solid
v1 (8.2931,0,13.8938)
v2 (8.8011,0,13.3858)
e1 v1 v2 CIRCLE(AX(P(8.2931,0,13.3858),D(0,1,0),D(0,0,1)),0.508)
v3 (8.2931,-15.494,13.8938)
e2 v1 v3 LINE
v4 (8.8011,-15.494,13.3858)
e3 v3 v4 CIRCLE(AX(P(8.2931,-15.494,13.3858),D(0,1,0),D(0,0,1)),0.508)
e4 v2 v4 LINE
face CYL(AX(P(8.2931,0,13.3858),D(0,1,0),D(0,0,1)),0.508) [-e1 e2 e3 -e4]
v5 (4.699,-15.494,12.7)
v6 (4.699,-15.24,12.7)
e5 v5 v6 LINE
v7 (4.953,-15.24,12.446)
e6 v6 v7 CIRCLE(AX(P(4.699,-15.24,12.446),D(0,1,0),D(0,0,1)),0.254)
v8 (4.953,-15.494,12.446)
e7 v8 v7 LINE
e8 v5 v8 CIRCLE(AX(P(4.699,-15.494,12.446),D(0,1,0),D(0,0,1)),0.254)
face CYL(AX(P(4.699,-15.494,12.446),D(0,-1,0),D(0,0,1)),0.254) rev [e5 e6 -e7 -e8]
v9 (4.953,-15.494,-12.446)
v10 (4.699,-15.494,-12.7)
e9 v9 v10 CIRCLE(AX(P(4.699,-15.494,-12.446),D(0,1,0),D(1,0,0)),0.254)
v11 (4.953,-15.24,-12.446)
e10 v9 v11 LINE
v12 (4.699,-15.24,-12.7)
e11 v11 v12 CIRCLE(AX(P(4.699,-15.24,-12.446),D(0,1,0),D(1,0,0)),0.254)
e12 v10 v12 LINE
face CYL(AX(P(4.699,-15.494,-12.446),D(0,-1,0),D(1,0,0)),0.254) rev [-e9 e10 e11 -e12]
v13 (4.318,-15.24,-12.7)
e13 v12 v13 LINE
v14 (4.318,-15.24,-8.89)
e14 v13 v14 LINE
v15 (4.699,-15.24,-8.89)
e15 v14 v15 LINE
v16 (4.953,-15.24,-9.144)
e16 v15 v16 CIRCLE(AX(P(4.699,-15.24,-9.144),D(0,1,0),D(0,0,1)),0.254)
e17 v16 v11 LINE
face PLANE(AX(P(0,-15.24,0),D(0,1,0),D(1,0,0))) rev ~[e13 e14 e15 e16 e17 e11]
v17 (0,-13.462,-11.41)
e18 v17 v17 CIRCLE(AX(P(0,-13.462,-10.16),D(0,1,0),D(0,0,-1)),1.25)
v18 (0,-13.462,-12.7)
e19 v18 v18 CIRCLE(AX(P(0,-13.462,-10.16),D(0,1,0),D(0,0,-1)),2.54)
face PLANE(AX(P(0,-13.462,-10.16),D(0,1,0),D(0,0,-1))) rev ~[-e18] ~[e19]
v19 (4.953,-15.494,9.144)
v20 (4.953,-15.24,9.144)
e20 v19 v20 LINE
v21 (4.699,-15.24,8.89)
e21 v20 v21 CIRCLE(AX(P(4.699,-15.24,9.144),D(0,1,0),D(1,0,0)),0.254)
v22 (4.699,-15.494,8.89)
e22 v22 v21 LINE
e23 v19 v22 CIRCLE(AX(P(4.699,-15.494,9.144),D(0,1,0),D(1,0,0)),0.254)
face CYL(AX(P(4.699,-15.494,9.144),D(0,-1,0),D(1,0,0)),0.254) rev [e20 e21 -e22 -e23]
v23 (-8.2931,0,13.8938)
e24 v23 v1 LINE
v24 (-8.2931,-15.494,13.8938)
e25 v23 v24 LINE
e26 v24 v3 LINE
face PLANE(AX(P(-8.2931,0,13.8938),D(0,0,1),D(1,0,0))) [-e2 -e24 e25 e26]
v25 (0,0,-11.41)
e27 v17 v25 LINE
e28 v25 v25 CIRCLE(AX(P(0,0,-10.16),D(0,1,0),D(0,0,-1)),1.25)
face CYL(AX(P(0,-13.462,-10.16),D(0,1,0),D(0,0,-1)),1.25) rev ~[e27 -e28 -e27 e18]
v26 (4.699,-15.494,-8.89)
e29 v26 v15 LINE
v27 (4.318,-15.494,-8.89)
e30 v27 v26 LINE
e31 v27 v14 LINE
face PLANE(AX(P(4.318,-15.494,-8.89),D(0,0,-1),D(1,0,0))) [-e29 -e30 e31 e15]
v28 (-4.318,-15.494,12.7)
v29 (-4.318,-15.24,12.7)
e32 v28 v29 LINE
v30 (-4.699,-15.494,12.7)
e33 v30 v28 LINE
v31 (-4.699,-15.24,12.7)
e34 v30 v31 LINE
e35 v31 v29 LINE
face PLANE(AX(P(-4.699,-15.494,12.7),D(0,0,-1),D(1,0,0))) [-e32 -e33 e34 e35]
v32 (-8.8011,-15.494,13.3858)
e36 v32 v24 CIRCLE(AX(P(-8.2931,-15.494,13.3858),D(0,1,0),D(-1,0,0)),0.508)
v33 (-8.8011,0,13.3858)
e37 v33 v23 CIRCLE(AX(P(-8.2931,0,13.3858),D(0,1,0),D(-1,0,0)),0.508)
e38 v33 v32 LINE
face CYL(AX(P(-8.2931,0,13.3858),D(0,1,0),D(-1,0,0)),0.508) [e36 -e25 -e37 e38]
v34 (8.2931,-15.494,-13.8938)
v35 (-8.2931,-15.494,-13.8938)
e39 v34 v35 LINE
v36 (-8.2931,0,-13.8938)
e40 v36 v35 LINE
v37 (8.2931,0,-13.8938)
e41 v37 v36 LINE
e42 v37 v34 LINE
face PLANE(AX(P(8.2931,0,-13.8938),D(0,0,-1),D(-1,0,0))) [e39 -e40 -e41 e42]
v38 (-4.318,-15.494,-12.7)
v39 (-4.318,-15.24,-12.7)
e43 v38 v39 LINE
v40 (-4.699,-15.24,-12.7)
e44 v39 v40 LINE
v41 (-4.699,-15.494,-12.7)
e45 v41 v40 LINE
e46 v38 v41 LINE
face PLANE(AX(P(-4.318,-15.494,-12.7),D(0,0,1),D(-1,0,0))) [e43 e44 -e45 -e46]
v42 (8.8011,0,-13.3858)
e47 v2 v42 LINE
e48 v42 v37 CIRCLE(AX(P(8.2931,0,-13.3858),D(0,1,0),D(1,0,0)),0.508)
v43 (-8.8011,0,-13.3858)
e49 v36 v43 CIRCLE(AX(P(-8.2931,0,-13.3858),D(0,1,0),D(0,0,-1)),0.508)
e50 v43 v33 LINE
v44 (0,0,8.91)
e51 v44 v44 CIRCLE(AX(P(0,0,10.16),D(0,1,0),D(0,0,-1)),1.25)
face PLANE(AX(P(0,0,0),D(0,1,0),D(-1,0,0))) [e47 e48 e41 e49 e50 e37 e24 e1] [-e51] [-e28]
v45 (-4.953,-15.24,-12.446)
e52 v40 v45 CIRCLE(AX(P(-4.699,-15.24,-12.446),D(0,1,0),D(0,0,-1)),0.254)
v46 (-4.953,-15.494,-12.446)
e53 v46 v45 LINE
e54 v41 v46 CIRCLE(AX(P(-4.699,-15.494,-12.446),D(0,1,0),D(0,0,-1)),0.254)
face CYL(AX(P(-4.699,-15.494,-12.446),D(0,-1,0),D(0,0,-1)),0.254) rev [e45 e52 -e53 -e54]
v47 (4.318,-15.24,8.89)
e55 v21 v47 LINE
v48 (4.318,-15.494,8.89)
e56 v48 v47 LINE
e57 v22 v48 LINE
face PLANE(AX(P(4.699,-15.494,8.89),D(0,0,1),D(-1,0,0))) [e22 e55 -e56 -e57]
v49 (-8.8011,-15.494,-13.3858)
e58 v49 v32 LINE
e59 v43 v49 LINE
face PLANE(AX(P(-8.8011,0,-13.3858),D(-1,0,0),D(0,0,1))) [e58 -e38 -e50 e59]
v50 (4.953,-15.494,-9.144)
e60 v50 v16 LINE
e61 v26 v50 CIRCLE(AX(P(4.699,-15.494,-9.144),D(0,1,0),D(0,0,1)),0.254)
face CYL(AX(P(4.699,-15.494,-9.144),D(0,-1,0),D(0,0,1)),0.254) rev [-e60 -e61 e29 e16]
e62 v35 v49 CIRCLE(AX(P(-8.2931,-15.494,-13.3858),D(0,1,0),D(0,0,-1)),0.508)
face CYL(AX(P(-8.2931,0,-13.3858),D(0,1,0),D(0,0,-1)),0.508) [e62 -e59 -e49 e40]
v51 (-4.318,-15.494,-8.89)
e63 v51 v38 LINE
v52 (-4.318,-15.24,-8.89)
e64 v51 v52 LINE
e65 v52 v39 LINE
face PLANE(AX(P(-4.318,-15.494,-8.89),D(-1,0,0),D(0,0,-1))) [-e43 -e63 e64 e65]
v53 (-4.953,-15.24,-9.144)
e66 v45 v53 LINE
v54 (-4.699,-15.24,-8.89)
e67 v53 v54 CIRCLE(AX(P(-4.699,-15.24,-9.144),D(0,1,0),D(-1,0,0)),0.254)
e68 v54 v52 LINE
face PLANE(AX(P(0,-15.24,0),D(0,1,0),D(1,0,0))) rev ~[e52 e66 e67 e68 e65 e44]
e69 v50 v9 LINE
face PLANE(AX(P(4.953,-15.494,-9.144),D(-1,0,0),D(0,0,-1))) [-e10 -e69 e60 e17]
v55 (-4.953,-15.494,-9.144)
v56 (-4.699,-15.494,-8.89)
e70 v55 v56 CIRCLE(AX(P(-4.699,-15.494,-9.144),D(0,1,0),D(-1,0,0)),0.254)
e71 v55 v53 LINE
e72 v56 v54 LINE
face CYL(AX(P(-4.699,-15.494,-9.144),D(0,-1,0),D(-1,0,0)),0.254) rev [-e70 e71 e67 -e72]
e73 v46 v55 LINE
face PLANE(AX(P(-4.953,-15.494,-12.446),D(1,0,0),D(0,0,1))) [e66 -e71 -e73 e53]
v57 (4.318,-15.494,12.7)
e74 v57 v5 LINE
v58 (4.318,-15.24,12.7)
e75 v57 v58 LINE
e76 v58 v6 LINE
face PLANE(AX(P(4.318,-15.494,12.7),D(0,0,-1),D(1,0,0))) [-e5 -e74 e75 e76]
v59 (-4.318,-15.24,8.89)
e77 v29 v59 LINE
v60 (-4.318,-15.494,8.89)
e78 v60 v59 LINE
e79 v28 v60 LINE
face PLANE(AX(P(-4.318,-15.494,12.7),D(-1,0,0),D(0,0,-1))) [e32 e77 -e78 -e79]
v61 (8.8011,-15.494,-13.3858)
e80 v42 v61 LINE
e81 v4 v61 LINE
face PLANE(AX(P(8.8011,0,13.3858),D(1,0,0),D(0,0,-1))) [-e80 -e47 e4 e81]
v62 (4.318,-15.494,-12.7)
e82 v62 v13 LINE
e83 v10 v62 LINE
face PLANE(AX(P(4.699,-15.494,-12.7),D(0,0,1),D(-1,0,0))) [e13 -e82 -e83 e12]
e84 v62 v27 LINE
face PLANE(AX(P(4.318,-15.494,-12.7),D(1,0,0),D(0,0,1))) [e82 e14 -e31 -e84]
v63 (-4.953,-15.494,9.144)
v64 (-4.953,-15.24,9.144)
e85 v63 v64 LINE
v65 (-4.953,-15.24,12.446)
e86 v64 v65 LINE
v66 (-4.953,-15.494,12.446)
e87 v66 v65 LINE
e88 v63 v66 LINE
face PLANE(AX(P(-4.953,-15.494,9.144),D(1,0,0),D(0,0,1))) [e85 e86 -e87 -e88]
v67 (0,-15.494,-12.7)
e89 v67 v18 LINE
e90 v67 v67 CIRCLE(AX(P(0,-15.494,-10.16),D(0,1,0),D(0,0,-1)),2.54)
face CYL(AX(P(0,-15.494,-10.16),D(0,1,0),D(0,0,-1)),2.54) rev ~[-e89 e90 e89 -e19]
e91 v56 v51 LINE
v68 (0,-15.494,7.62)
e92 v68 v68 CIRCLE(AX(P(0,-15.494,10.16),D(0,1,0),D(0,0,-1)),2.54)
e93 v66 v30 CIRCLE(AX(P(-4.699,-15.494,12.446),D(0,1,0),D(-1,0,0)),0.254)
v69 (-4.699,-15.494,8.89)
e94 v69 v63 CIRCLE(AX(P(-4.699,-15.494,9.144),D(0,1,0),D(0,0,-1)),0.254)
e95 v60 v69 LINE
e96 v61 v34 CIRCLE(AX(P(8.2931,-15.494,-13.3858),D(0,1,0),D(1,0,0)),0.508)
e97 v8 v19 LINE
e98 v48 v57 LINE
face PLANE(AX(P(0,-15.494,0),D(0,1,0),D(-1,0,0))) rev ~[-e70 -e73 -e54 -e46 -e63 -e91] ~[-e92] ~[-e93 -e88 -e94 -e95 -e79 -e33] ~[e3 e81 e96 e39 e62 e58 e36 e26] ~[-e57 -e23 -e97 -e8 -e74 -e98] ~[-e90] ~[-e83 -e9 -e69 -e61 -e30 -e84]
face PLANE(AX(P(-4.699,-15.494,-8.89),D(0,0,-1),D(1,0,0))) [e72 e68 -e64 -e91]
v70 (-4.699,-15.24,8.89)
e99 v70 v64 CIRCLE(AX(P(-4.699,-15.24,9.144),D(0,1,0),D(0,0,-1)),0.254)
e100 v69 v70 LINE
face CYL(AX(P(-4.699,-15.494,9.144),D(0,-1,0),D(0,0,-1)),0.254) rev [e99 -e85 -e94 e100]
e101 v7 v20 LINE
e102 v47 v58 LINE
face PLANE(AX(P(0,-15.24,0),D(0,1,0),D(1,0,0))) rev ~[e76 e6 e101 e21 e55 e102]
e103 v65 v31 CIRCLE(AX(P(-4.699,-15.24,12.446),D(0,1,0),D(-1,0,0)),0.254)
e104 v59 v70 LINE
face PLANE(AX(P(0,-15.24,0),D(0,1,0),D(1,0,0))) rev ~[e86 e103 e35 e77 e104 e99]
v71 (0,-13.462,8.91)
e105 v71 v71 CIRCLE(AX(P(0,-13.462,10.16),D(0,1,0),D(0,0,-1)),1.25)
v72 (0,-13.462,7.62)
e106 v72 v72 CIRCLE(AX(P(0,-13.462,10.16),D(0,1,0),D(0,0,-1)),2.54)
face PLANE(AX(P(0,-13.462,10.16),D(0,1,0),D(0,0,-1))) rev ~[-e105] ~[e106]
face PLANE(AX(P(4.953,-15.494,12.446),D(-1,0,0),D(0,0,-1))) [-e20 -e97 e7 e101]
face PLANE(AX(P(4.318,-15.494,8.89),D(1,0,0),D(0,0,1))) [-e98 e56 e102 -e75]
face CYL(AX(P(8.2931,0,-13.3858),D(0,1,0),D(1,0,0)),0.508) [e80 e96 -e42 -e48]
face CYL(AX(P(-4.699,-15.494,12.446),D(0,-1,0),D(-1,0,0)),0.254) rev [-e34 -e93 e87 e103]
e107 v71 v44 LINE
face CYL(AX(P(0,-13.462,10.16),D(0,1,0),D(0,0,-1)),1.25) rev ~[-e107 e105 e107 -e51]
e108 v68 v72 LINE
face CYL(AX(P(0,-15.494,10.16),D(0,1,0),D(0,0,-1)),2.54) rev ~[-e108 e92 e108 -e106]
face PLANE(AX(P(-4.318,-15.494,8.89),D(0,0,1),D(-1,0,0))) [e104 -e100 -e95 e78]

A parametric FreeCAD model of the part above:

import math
import FreeCAD as App
import Part
import Sketcher

V = App.Vector
Q = App.Units.Quantity

doc = App.newDocument("Part")
body = doc.addObject("PartDesign::Body", "Body")

# Sketch on XZ plane
sketch1 = body.newObject("Sketcher::SketchObject", "Sketch")
sketch1.AttachmentSupport = (doc.getObject("XZ_Plane"), [""])
sketch1.MapMode = "FlatFace"
sketch1.addGeometry([
    Part.ArcOfCircle(Part.Circle(V(-8.2931, -13.3858, 0), V(0, 0, 1), 0.508), math.radians(180), math.radians(270)),  # 0
    Part.LineSegment(V(-8.8011, -13.3858, 0), V(-8.8011, 13.3858, 0)),  # 1
    Part.ArcOfCircle(Part.Circle(V(-8.2931, 13.3858, 0), V(0, 0, 1), 0.508), math.radians(90), math.radians(180)),  # 2
    Part.LineSegment(V(-8.2931, 13.8938, 0), V(8.2931, 13.8938, 0)),  # 3
    Part.ArcOfCircle(Part.Circle(V(8.2931, 13.3858, 0), V(0, 0, 1), 0.508), math.radians(0), math.radians(90)),  # 4
    Part.LineSegment(V(8.8011, 13.3858, 0), V(8.8011, -13.3858, 0)),  # 5
    Part.ArcOfCircle(Part.Circle(V(8.2931, -13.3858, 0), V(0, 0, 1), 0.508), math.radians(-90), math.radians(0)),  # 6
    Part.LineSegment(V(8.2931, -13.8938, 0), V(-8.2931, -13.8938, 0)),  # 7
], False)
sketch1.addConstraint([
    Sketcher.Constraint("Tangent", 0, 1, 1, 1),
    Sketcher.Constraint("Tangent", 1, 2, 2, 2),
    Sketcher.Constraint("Tangent", 2, 1, 3, 1),
    Sketcher.Constraint("Tangent", 3, 2, 4, 2),
    Sketcher.Constraint("Tangent", 4, 1, 5, 1),
    Sketcher.Constraint("Tangent", 5, 2, 6, 2),
    Sketcher.Constraint("Tangent", 6, 1, 7, 1),
    Sketcher.Constraint("Tangent", 7, 2, 0, 2),
    Sketcher.Constraint("Vertical", 1),
    Sketcher.Constraint("Horizontal", 3),
    Sketcher.Constraint("Vertical", 5),
    Sketcher.Constraint("Horizontal", 7),
    Sketcher.Constraint("Equal", 0, 2),
    Sketcher.Constraint("Equal", 2, 4),
    Sketcher.Constraint("Equal", 4, 6),
    Sketcher.Constraint("Symmetric", 0, 3, 4, 3, -1, 1),
    Sketcher.Constraint("Radius", 0, Q("0.02 in")),
    Sketcher.Constraint("DistanceX", 3, 1, 3, 2, Q("0.653 in")),
    Sketcher.Constraint("DistanceY", 1, 1, 1, 2, Q("1.054 in")),
])
pad1 = body.newObject("PartDesign::Pad", "Pad")
pad1.Profile = sketch1
pad1.Length = Q("0.61 in")

# Sketch on XZ plane
sketch2 = body.newObject("Sketcher::SketchObject", "Sketch001")
sketch2.AttachmentSupport = (doc.getObject("XZ_Plane"), [""])
sketch2.MapMode = "FlatFace"
sketch2.AttachmentOffset = App.Placement(V(0, 0, 0.61 * 25.4), App.Rotation())
sketch2.addGeometry([
    Part.LineSegment(V(-4.953, 9.144, 0), V(-4.953, 12.446, 0)),  # 0
    Part.ArcOfCircle(Part.Circle(V(-4.699, 12.446, 0), V(0, 0, 1), 0.254), math.radians(90), math.radians(180)),  # 1
    Part.LineSegment(V(-4.699, 12.7, 0), V(-4.318, 12.7, 0)),  # 2
    Part.LineSegment(V(-4.318, 12.7, 0), V(-4.318, 8.89, 0)),  # 3
    Part.LineSegment(V(-4.318, 8.89, 0), V(-4.699, 8.89, 0)),  # 4
    Part.ArcOfCircle(Part.Circle(V(-4.699, 9.144, 0), V(0, 0, 1), 0.254), math.radians(180), math.radians(270)),  # 5
], False)
sketch2.addConstraint([
    Sketcher.Constraint("Tangent", 0, 2, 1, 2),
    Sketcher.Constraint("Tangent", 1, 1, 2, 1),
    Sketcher.Constraint("Coincident", 2, 2, 3, 1),
    Sketcher.Constraint("Coincident", 3, 2, 4, 1),
    Sketcher.Constraint("Tangent", 4, 2, 5, 2),
    Sketcher.Constraint("Tangent", 5, 1, 0, 1),
    Sketcher.Constraint("Vertical", 0),
    Sketcher.Constraint("Horizontal", 2),
    Sketcher.Constraint("Vertical", 3),
    Sketcher.Constraint("Horizontal", 4),
    Sketcher.Constraint("Equal", 1, 5),
    Sketcher.Constraint("Radius", 1, Q("0.01 in")),
    Sketcher.Constraint("DistanceY", 0, 1, 0, 2, Q("0.13 in")),
    Sketcher.Constraint("DistanceY", -1, 1, 1, 1, Q("0.5 in")),
    Sketcher.Constraint("DistanceX", 2, 1, 2, 2, Q("0.015 in")),
    Sketcher.Constraint("DistanceX", 2, 2, -1, 1, Q("0.17 in")),
])
pocket1 = body.newObject("PartDesign::Pocket", "Pocket")
pocket1.Profile = sketch2
pocket1.Length = Q("0.01 in")

# Sketch on XZ plane
sketch3 = body.newObject("Sketcher::SketchObject", "Sketch002")
sketch3.AttachmentSupport = (doc.getObject("XZ_Plane"), [""])
sketch3.MapMode = "FlatFace"
sketch3.AttachmentOffset = App.Placement(V(0, 0, 0.61 * 25.4), App.Rotation())
sketch3.addGeometry([
    Part.LineSegment(V(4.318, 8.89, 0), V(4.318, 12.7, 0)),  # 0
    Part.LineSegment(V(4.318, 12.7, 0), V(4.699, 12.7, 0)),  # 1
    Part.ArcOfCircle(Part.Circle(V(4.699, 12.446, 0), V(0, 0, 1), 0.254), math.radians(0), math.radians(90)),  # 2
    Part.LineSegment(V(4.953, 12.446, 0), V(4.953, 9.144, 0)),  # 3
    Part.ArcOfCircle(Part.Circle(V(4.699, 9.144, 0), V(0, 0, 1), 0.254), math.radians(-90), math.radians(0)),  # 4
    Part.LineSegment(V(4.699, 8.89, 0), V(4.318, 8.89, 0)),  # 5
], False)
sketch3.addConstraint([
    Sketcher.Constraint("Coincident", 0, 2, 1, 1),
    Sketcher.Constraint("Tangent", 1, 2, 2, 2),
    Sketcher.Constraint("Tangent", 2, 1, 3, 1),
    Sketcher.Constraint("Tangent", 3, 2, 4, 2),
    Sketcher.Constraint("Tangent", 4, 1, 5, 1),
    Sketcher.Constraint("Coincident", 5, 2, 0, 1),
    Sketcher.Constraint("Vertical", 0),
    Sketcher.Constraint("Horizontal", 1),
    Sketcher.Constraint("Vertical", 3),
    Sketcher.Constraint("Horizontal", 5),
    Sketcher.Constraint("Equal", 2, 4),
    Sketcher.Constraint("Radius", 2, Q("0.01 in")),
    Sketcher.Constraint("DistanceY", 0, 1, 0, 2, Q("0.15 in")),
    Sketcher.Constraint("DistanceY", -1, 1, 0, 2, Q("0.5 in")),
    Sketcher.Constraint("DistanceX", 1, 1, 1, 2, Q("0.015 in")),
    Sketcher.Constraint("DistanceX", -1, 1, 0, 2, Q("0.17 in")),
])
pocket2 = body.newObject("PartDesign::Pocket", "Pocket001")
pocket2.Profile = sketch3
pocket2.Length = Q("0.01 in")

# Sketch on XZ plane
sketch4 = body.newObject("Sketcher::SketchObject", "Sketch003")
sketch4.AttachmentSupport = (doc.getObject("XZ_Plane"), [""])
sketch4.MapMode = "FlatFace"
sketch4.AttachmentOffset = App.Placement(V(0, 0, 0.61 * 25.4), App.Rotation())
sketch4.addGeometry([
    Part.ArcOfCircle(Part.Circle(V(-4.699, -12.446, 0), V(0, 0, 1), 0.254), math.radians(180), math.radians(270)),  # 0
    Part.LineSegment(V(-4.953, -12.446, 0), V(-4.953, -9.144, 0)),  # 1
    Part.ArcOfCircle(Part.Circle(V(-4.699, -9.144, 0), V(0, 0, 1), 0.254), math.radians(90), math.radians(180)),  # 2
    Part.LineSegment(V(-4.699, -8.89, 0), V(-4.318, -8.89, 0)),  # 3
    Part.LineSegment(V(-4.318, -8.89, 0), V(-4.318, -12.7, 0)),  # 4
    Part.LineSegment(V(-4.318, -12.7, 0), V(-4.699, -12.7, 0)),  # 5
], False)
sketch4.addConstraint([
    Sketcher.Constraint("Tangent", 0, 1, 1, 1),
    Sketcher.Constraint("Tangent", 1, 2, 2, 2),
    Sketcher.Constraint("Tangent", 2, 1, 3, 1),
    Sketcher.Constraint("Coincident", 3, 2, 4, 1),
    Sketcher.Constraint("Coincident", 4, 2, 5, 1),
    Sketcher.Constraint("Tangent", 5, 2, 0, 2),
    Sketcher.Constraint("Vertical", 1),
    Sketcher.Constraint("Horizontal", 3),
    Sketcher.Constraint("Vertical", 4),
    Sketcher.Constraint("Horizontal", 5),
    Sketcher.Constraint("Equal", 0, 2),
    Sketcher.Constraint("Radius", 0, Q("0.01 in")),
    Sketcher.Constraint("DistanceY", 1, 1, 1, 2, Q("0.13 in")),
    Sketcher.Constraint("DistanceY", 4, 2, -1, 1, Q("0.5 in")),
    Sketcher.Constraint("DistanceX", 3, 1, 3, 2, Q("0.015 in")),
    Sketcher.Constraint("DistanceX", 3, 2, -1, 1, Q("0.17 in")),
])
pocket3 = body.newObject("PartDesign::Pocket", "Pocket002")
pocket3.Profile = sketch4
pocket3.Length = Q("0.01 in")

# Sketch on XZ plane
sketch5 = body.newObject("Sketcher::SketchObject", "Sketch004")
sketch5.AttachmentSupport = (doc.getObject("XZ_Plane"), [""])
sketch5.MapMode = "FlatFace"
sketch5.AttachmentOffset = App.Placement(V(0, 0, 0.61 * 25.4), App.Rotation())
sketch5.addGeometry([
    Part.LineSegment(V(4.699, -12.7, 0), V(4.318, -12.7, 0)),  # 0
    Part.LineSegment(V(4.318, -12.7, 0), V(4.318, -8.89, 0)),  # 1
    Part.LineSegment(V(4.318, -8.89, 0), V(4.699, -8.89, 0)),  # 2
    Part.ArcOfCircle(Part.Circle(V(4.699, -9.144, 0), V(0, 0, 1), 0.254), math.radians(0), math.radians(90)),  # 3
    Part.LineSegment(V(4.953, -9.144, 0), V(4.953, -12.446, 0)),  # 4
    Part.ArcOfCircle(Part.Circle(V(4.699, -12.446, 0), V(0, 0, 1), 0.254), math.radians(-90), math.radians(0)),  # 5
], False)
sketch5.addConstraint([
    Sketcher.Constraint("Coincident", 0, 2, 1, 1),
    Sketcher.Constraint("Coincident", 1, 2, 2, 1),
    Sketcher.Constraint("Tangent", 2, 2, 3, 2),
    Sketcher.Constraint("Tangent", 3, 1, 4, 1),
    Sketcher.Constraint("Tangent", 4, 2, 5, 2),
    Sketcher.Constraint("Tangent", 5, 1, 0, 1),
    Sketcher.Constraint("Horizontal", 0),
    Sketcher.Constraint("Vertical", 1),
    Sketcher.Constraint("Horizontal", 2),
    Sketcher.Constraint("Vertical", 4),
    Sketcher.Constraint("Equal", 3, 5),
    Sketcher.Constraint("Radius", 3, Q("0.01 in")),
    Sketcher.Constraint("DistanceY", 1, 1, 1, 2, Q("0.15 in")),
    Sketcher.Constraint("DistanceY", 0, 2, -1, 1, Q("0.5 in")),
    Sketcher.Constraint("DistanceX", 0, 2, 0, 1, Q("0.015 in")),
    Sketcher.Constraint("DistanceX", -1, 1, 0, 2, Q("0.17 in")),
])
pocket4 = body.newObject("PartDesign::Pocket", "Pocket003")
pocket4.Profile = sketch5
pocket4.Length = Q("0.01 in")

# Sketch on XZ plane
sketch6 = body.newObject("Sketcher::SketchObject", "Sketch005")
sketch6.AttachmentSupport = (doc.getObject("XZ_Plane"), [""])
sketch6.MapMode = "FlatFace"
sketch6.AttachmentOffset = App.Placement(V(0, 0, 0.61 * 25.4), App.Rotation())
sketch6.addGeometry(Part.Circle(V(0, 10.16, 0), V(0, 0, 1), 1.25), False)
sketch6.addConstraint([
    Sketcher.Constraint("PointOnObject", 0, 3, -2),
    Sketcher.Constraint("DistanceY", -1, 1, 0, 3, Q("0.4 in")),
    Sketcher.Constraint("Diameter", 0, 2.5),
])
doc.recompute()
hole = body.newObject("PartDesign::Hole", "Hole")
hole.Profile = sketch6
hole.ThreadType = "None"
hole.Diameter = 2.5
hole.DepthType = "Dimension"
hole.Depth = Q("0.61 in")
hole.DrillPoint = "Flat"
hole.HoleCutType = "Counterbore"
hole.HoleCutDiameter = Q("0.2 in")
hole.HoleCutDepth = Q("0.08 in")

# Sketch on XZ plane
sketch7 = body.newObject("Sketcher::SketchObject", "Sketch006")
sketch7.AttachmentSupport = (doc.getObject("XZ_Plane"), [""])
sketch7.MapMode = "FlatFace"
sketch7.AttachmentOffset = App.Placement(V(0, 0, 0.61 * 25.4), App.Rotation())
sketch7.addGeometry(Part.Circle(V(0, -10.16, 0), V(0, 0, 1), 1.25), False)
sketch7.addConstraint([
    Sketcher.Constraint("PointOnObject", 0, 3, -2),
    Sketcher.Constraint("DistanceY", 0, 3, -1, 1, Q("0.4 in")),
    Sketcher.Constraint("Diameter", 0, 2.5),
])
doc.recompute()
hole2 = body.newObject("PartDesign::Hole", "Hole001")
hole2.Profile = sketch7
hole2.ThreadType = "None"
hole2.Diameter = 2.5
hole2.DepthType = "Dimension"
hole2.Depth = Q("0.61 in")
hole2.DrillPoint = "Flat"
hole2.HoleCutType = "Counterbore"
hole2.HoleCutDiameter = Q("0.2 in")
hole2.HoleCutDepth = Q("0.08 in")

doc.recompute()
